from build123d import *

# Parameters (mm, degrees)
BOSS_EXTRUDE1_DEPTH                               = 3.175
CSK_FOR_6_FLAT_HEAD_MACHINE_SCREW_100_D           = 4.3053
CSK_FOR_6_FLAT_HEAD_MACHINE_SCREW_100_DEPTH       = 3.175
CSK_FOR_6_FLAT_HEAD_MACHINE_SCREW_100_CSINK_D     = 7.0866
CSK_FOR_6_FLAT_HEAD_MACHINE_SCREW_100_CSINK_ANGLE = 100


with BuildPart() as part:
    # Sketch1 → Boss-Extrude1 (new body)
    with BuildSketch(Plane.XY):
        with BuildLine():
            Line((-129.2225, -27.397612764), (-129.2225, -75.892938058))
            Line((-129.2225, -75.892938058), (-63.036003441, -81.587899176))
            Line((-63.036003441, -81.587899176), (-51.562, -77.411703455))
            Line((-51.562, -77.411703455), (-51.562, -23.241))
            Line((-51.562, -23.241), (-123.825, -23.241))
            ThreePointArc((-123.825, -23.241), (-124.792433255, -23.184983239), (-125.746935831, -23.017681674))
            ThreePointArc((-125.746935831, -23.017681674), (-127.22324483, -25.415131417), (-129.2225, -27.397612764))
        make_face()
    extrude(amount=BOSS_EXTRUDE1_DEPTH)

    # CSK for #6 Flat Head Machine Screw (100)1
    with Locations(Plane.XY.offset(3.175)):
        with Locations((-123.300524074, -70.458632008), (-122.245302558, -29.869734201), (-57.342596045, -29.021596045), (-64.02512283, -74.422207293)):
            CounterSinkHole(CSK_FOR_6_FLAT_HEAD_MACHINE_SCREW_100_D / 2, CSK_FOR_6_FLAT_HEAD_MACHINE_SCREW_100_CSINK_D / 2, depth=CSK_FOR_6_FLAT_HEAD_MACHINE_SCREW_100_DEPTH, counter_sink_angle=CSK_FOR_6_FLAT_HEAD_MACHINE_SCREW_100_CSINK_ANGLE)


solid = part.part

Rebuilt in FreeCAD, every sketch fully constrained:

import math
import FreeCAD as App
import Part
import Sketcher
Q = App.Units.Quantity

doc = App.newDocument("Part")
body = doc.addObject("PartDesign::Body", "Body")

sketch1 = body.newObject("Sketcher::SketchObject", "Sketch")
sketch1.AttachmentSupport = (doc.getObject("XY_Plane"), [""])
sketch1.MapMode = "FlatFace"
sketch1.addGeometry([
    Part.LineSegment(App.Vector(-129.2, -27.4, 0), App.Vector(-129.2, -75.9, 0)),
    Part.LineSegment(App.Vector(-129.2, -75.9, 0), App.Vector(-63, -81.6, 0)),
    Part.LineSegment(App.Vector(-63, -81.6, 0), App.Vector(-51.6, -77.4, 0)),
    Part.LineSegment(App.Vector(-51.6, -77.4, 0), App.Vector(-51.6, -23.2, 0)),
    Part.LineSegment(App.Vector(-51.6, -23.2, 0), App.Vector(-123.8, -23.2, 0)),
    Part.ArcOfCircle(Part.Circle(App.Vector(-123.8, -14.9, 0), App.Vector(0, 0, 1), 8.4), math.radians(-103.26), math.radians(-90)),
    Part.ArcOfCircle(Part.Circle(App.Vector(-136.5, -18, 0), App.Vector(0, 0, 1), 11.9), math.radians(-52), math.radians(-25)),
], False)
sketch1.addConstraint([
    Sketcher.Constraint("Coincident", 0, 2, 1, 1),
    Sketcher.Constraint("Coincident", 1, 2, 2, 1),
    Sketcher.Constraint("Coincident", 2, 2, 3, 1),
    Sketcher.Constraint("Coincident", 3, 2, 4, 1),
    Sketcher.Constraint("Tangent", 4, 2, 5, 2),
    Sketcher.Constraint("Coincident", 5, 1, 6, 2),
    Sketcher.Constraint("Coincident", 6, 1, 0, 1),
    Sketcher.Constraint("Vertical", 0),
    Sketcher.Constraint("Vertical", 3),
    Sketcher.Constraint("Horizontal", 4),
    Sketcher.Constraint("Radius", 5, Q("0.33 in")),
    Sketcher.Constraint("Angle", 2, Q("20 deg")),
    Sketcher.Constraint("Radius", 6, Q("0.4675 in")),
    Sketcher.Constraint("DistanceX", 6, 3, 5, 3, Q("0.5 in")),
    Sketcher.Constraint("DistanceX", 4, 2, 4, 1, Q("2.845 in")),
    Sketcher.Constraint("DistanceY", 6, 3, -1, 1, Q("0.71 in")),
    Sketcher.Constraint("DistanceX", 2, 2, -1, 1, Q("2.03 in")),
    Sketcher.Constraint("DistanceY", 5, 3, -1, 1, Q("0.585 in")),
    Sketcher.Constraint("DistanceX", 0, 2, -1, 1, Q("5.0875 in")),
    Sketcher.Constraint("DistanceY", 1, 2, -1, 1, Q("81.587899 mm")),
    Sketcher.Constraint("Distance", 2, Q("12.210379 mm")),
    Sketcher.Constraint("DistanceY", 0, 2, 0, 1, Q("48.495325 mm")),
])
pad1 = body.newObject("PartDesign::Pad", "Pad")
pad1.Profile = sketch1
pad1.Length = Q("0.125 in")

sketch2 = body.newObject("Sketcher::SketchObject", "Sketch001")
sketch2.AttachmentSupport = (doc.getObject("XY_Plane"), [""])
sketch2.MapMode = "FlatFace"
sketch2.AttachmentOffset = App.Placement(App.Vector(0, 0, 0.125 * 25.4), App.Rotation())
sketch2.addGeometry([
    Part.Circle(App.Vector(-123.3, -70.5, 0), App.Vector(0, 0, 1), 2.2),
    Part.Circle(App.Vector(-122.2, -29.9, 0), App.Vector(0, 0, 1), 2.2),
    Part.Circle(App.Vector(-57.3, -29, 0), App.Vector(0, 0, 1), 2.2),
    Part.Circle(App.Vector(-64, -74.4, 0), App.Vector(0, 0, 1), 2.2),
], False)
sketch2.addConstraint([
    Sketcher.Constraint("Equal", 0, 1),
    Sketcher.Constraint("Equal", 1, 2),
    Sketcher.Constraint("Equal", 2, 3),
    Sketcher.Constraint("Diameter", 0, Q("0.1695 in")),
    Sketcher.Constraint("DistanceX", 0, 3, 3, 3, Q("59.275401 mm")),
    Sketcher.Constraint("DistanceX", 0, 3, 1, 3, Q("1.055222 mm")),
    Sketcher.Constraint("DistanceY", 1, 3, 2, 3, Q("0.848138 mm")),
    Sketcher.Constraint("DistanceX", 0, 3, 2, 3, Q("65.957928 mm")),
    Sketcher.Constraint("DistanceY", 3, 3, 2, 3, Q("45.400611 mm")),
    Sketcher.Constraint("DistanceX", 0, 3, -1, 1, Q("123.300524 mm")),
    Sketcher.Constraint("DistanceY", 0, 3, -1, 1, Q("70.458632 mm")),
    Sketcher.Constraint("DistanceY", 1, 3, -1, 1, Q("29.869734 mm")),
])
doc.recompute()
hole = body.newObject("PartDesign::Hole", "Hole")
hole.Profile = sketch2
hole.ThreadType = "None"
hole.Diameter = Q("0.1695 in")
hole.DepthType = "Dimension"
hole.Depth = Q("0.125 in")
hole.DrillPoint = "Flat"
hole.HoleCutType = "Countersink"
hole.HoleCutDiameter = Q("0.279 in")
hole.HoleCutCountersinkAngle = 100

doc.recompute()
